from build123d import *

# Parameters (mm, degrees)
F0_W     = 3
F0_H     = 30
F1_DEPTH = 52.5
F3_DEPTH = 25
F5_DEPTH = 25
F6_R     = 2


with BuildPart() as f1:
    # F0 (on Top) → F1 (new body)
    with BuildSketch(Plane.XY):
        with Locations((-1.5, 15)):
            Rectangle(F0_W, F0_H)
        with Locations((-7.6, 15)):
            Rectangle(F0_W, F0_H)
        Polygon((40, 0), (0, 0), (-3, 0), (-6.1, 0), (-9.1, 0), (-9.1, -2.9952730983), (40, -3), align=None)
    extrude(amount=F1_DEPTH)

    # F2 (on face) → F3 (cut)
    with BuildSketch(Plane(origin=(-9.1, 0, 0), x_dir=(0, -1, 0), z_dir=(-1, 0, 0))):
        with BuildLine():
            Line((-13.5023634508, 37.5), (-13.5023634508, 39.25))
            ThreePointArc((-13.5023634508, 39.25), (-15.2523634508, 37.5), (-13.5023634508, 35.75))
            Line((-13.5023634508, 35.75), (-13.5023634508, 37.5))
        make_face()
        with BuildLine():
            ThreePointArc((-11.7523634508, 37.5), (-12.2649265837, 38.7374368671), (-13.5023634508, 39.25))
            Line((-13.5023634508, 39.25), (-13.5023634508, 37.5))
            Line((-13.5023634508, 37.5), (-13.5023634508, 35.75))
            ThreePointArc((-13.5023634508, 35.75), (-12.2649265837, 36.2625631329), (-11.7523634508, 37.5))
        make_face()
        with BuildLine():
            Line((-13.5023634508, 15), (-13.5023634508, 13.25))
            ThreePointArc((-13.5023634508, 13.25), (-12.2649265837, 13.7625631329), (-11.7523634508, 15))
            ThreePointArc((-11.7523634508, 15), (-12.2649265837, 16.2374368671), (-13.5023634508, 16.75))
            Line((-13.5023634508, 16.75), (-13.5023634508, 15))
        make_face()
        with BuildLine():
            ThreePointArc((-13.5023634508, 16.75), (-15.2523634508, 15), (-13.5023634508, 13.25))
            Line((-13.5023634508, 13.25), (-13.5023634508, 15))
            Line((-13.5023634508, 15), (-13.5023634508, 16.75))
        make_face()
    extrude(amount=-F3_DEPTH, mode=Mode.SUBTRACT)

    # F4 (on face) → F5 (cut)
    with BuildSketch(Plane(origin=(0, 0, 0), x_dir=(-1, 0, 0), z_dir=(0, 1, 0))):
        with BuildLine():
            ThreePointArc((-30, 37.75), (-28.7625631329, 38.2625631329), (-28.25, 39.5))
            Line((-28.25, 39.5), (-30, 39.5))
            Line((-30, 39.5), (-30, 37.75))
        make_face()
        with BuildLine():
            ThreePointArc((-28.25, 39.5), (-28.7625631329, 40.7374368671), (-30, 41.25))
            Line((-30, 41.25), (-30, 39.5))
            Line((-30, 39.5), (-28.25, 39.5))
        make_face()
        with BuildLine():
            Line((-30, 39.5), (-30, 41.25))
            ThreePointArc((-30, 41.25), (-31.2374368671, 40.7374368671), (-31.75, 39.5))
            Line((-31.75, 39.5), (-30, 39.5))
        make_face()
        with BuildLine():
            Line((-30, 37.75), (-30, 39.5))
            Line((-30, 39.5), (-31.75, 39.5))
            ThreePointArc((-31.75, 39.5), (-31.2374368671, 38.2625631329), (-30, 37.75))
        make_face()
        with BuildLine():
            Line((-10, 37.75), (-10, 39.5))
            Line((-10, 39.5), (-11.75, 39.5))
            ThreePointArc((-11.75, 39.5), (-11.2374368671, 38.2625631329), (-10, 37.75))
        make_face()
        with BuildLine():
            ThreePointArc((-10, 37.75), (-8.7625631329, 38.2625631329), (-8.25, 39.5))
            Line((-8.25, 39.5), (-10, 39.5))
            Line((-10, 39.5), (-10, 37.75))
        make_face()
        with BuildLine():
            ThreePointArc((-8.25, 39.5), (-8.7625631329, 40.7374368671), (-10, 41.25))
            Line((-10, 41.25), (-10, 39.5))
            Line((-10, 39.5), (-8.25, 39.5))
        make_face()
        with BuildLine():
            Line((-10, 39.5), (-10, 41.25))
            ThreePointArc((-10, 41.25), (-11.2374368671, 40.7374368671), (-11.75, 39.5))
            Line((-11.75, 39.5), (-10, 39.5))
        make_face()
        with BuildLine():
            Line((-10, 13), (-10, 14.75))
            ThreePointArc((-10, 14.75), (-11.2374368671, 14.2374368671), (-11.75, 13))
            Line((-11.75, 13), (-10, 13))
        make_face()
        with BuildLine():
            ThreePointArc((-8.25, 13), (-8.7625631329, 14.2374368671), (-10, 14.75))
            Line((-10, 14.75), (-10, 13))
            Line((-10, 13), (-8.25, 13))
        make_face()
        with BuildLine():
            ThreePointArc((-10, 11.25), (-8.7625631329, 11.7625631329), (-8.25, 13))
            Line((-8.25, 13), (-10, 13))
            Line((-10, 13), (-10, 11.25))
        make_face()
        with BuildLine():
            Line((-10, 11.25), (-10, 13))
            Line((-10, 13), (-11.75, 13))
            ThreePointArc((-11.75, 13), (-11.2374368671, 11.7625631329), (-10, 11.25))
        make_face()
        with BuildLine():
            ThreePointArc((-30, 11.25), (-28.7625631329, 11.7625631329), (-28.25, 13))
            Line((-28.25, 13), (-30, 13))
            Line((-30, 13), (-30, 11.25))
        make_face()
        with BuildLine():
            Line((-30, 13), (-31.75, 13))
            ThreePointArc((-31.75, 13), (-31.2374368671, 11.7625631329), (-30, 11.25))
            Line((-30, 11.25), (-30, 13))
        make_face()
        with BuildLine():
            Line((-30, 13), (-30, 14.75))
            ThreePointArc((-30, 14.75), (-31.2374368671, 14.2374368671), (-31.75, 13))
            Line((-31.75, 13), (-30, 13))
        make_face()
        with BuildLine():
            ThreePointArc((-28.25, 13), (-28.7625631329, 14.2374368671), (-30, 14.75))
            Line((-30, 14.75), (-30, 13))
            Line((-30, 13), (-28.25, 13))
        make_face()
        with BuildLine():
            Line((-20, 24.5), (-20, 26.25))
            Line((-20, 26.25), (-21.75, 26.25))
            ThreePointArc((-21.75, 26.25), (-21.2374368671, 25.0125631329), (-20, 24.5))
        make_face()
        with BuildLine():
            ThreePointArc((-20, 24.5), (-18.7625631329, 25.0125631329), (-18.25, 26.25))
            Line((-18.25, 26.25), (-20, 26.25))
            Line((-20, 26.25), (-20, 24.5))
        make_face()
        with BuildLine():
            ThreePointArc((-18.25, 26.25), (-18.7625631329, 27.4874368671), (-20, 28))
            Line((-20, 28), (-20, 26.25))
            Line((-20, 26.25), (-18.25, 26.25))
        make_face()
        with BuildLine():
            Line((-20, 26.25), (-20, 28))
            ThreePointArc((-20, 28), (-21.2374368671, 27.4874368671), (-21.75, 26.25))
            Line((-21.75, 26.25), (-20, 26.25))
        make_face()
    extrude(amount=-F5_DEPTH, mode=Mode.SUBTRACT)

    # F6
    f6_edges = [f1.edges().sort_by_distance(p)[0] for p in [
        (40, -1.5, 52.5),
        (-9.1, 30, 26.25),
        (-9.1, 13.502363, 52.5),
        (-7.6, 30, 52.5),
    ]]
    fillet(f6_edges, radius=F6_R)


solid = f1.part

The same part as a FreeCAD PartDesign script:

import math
import FreeCAD as App
import Part
import Sketcher
from FreeCAD import Vector


def edges_at(feature, points):
    """Names of the edges that pass closest to the given points."""
    edges = feature.Shape.Edges
    near = lambda p: min(range(len(edges)), key=lambda i: edges[i].distToShape(Part.Vertex(*p))[0])
    return sorted({f"Edge{near(p) + 1}" for p in points})

doc = App.newDocument("Part")
params = doc.addObject("Spreadsheet::Sheet", "Params")
for row, (alias, value) in enumerate([
    ("sketch1_width", "3 mm"),
    ("sketch1_width2", "40 mm"),
    ("sketch1_height", "30 mm"),
    ("sketch1_width3", "3.1 mm"),
    ("pad1_length", "52.5 mm"),
    ("sketch2_radius", "1.75 mm"),
    ("pocket1_length", "25 mm"),
    ("sketch3_radius", "1.75 mm"),
    ("pocket2_length", "25 mm"),
    ("fillet_radius", "2 mm"),
], start=1):
    params.set(f"A{row}", alias)
    params.set(f"B{row}", "=" + value)
    params.setAlias(f"B{row}", alias)

body = doc.addObject("PartDesign::Body", "Body")

sketch1 = body.newObject("Sketcher::SketchObject", "Sketch")
sketch1.AttachmentSupport = (doc.getObject("XY_Plane"), [""])
sketch1.MapMode = "FlatFace"
sketch1.addGeometry(Part.LineSegment(Vector(-3, 30, 0), Vector(-3, 0, 0)), False)
sketch1.addGeometry(Part.LineSegment(Vector(-3, 0, 0), Vector(-6.1, 0, 0)), False)
sketch1.addGeometry(Part.LineSegment(Vector(-6.1, 0, 0), Vector(-6.1, 30, 0)), False)
sketch1.addGeometry(Part.LineSegment(Vector(-6.1, 30, 0), Vector(-9.1, 30, 0)), False)
sketch1.addGeometry(Part.LineSegment(Vector(-9.1, 30, 0), Vector(-9.1, -2.995273, 0)), False)
sketch1.addGeometry(Part.LineSegment(Vector(-9.1, -2.995273, 0), Vector(40, -3, 0)), False)
sketch1.addGeometry(Part.LineSegment(Vector(40, -3, 0), Vector(40, 0, 0)), False)
sketch1.addGeometry(Part.LineSegment(Vector(40, 0, 0), Vector(0, 0, 0)), False)
sketch1.addGeometry(Part.LineSegment(Vector(0, 0, 0), Vector(0, 30, 0)), False)
sketch1.addGeometry(Part.LineSegment(Vector(0, 30, 0), Vector(-3, 30, 0)), False)
sketch1.addConstraint(Sketcher.Constraint("Coincident", 0, 2, 1, 1))
sketch1.addConstraint(Sketcher.Constraint("Coincident", 1, 2, 2, 1))
sketch1.addConstraint(Sketcher.Constraint("Coincident", 2, 2, 3, 1))
sketch1.addConstraint(Sketcher.Constraint("Coincident", 3, 2, 4, 1))
sketch1.addConstraint(Sketcher.Constraint("Coincident", 4, 2, 5, 1))
sketch1.addConstraint(Sketcher.Constraint("Coincident", 5, 2, 6, 1))
sketch1.addConstraint(Sketcher.Constraint("Coincident", 6, 2, 7, 1))
sketch1.addConstraint(Sketcher.Constraint("Coincident", 7, 2, 8, 1))
sketch1.addConstraint(Sketcher.Constraint("Coincident", 8, 2, 9, 1))
sketch1.addConstraint(Sketcher.Constraint("Coincident", 9, 2, 0, 1))
sketch1.addConstraint(Sketcher.Constraint("Vertical", 0))
sketch1.addConstraint(Sketcher.Constraint("Horizontal", 1))
sketch1.addConstraint(Sketcher.Constraint("Vertical", 2))
sketch1.addConstraint(Sketcher.Constraint("Horizontal", 3))
sketch1.addConstraint(Sketcher.Constraint("Vertical", 4))
sketch1.addConstraint(Sketcher.Constraint("Vertical", 6))
sketch1.addConstraint(Sketcher.Constraint("Horizontal", 7))
sketch1.addConstraint(Sketcher.Constraint("Vertical", 8))
sketch1.addConstraint(Sketcher.Constraint("Horizontal", 9))
sketch1.addConstraint(Sketcher.Constraint("Coincident", 7, 2, -1, 1))
sketch1.addConstraint(Sketcher.Constraint("PointOnObject", 0, 2, -1))
sketch1.addConstraint(Sketcher.Constraint("Horizontal", 3, 2, 8, 2))
sketch1.addConstraint(Sketcher.Constraint("Equal", 3, 9))
sketch1.addConstraint(Sketcher.Constraint("Equal", 9, 6))
sketch1.addConstraint(Sketcher.Constraint("DistanceX", 3, 2, 3, 1, 3.0))
sketch1.addConstraint(Sketcher.Constraint("DistanceX", 7, 2, 7, 1, 40.0))
sketch1.addConstraint(Sketcher.Constraint("DistanceY", 0, 2, 0, 1, 30.0))
sketch1.addConstraint(Sketcher.Constraint("DistanceX", 1, 2, 1, 1, 3.1))
sketch1.addConstraint(Sketcher.Constraint("DistanceY", 4, 2, 4, 1, 32.995273))
sketch1.setExpression("Constraints[24]", "Params.sketch1_width")
sketch1.setExpression("Constraints[25]", "Params.sketch1_width2")
sketch1.setExpression("Constraints[26]", "Params.sketch1_height")
sketch1.setExpression("Constraints[27]", "Params.sketch1_width3")
pad1 = body.newObject("PartDesign::Pad", "Pad")
pad1.Profile = sketch1
pad1.setExpression("Length", "Params.pad1_length")

sketch2 = body.newObject("Sketcher::SketchObject", "Sketch001")
sketch2.AttachmentSupport = (doc.getObject("YZ_Plane"), [""])
sketch2.MapMode = "FlatFace"
sketch2.AttachmentOffset = App.Placement(Vector(0, 0, -9.1), App.Rotation())
sketch2.addGeometry(Part.ArcOfCircle(Part.Circle(Vector(13.502363, 37.5, 0), Vector(0, 0, 1), 1.75), math.radians(-90), math.radians(90)), False)
sketch2.addGeometry(Part.ArcOfCircle(Part.Circle(Vector(13.502363, 37.5, 0), Vector(0, 0, 1), 1.75), math.radians(180), math.radians(270)), False)
sketch2.addGeometry(Part.ArcOfCircle(Part.Circle(Vector(13.502363, 37.5, 0), Vector(0, 0, 1), 1.75), math.radians(90), math.radians(180)), False)
sketch2.addGeometry(Part.ArcOfCircle(Part.Circle(Vector(13.502363, 15, 0), Vector(0, 0, 1), 1.75), math.radians(180), math.radians(270)), False)
sketch2.addGeometry(Part.ArcOfCircle(Part.Circle(Vector(13.502363, 15, 0), Vector(0, 0, 1), 1.75), math.radians(90), math.radians(180)), False)
sketch2.addGeometry(Part.ArcOfCircle(Part.Circle(Vector(13.502363, 15, 0), Vector(0, 0, 1), 1.75), math.radians(-90), math.radians(90)), False)
sketch2.addConstraint(Sketcher.Constraint("Tangent", 0, 1, 1, 2))
sketch2.addConstraint(Sketcher.Constraint("Tangent", 1, 1, 2, 2))
sketch2.addConstraint(Sketcher.Constraint("Tangent", 2, 1, 0, 2))
sketch2.addConstraint(Sketcher.Constraint("Tangent", 3, 1, 4, 2))
sketch2.addConstraint(Sketcher.Constraint("Tangent", 4, 1, 5, 2))
sketch2.addConstraint(Sketcher.Constraint("Tangent", 5, 1, 3, 2))
sketch2.addConstraint(Sketcher.Constraint("Equal", 2, 3))
sketch2.addConstraint(Sketcher.Constraint("Horizontal", 2, 3, 1, 1))
sketch2.addConstraint(Sketcher.Constraint("Horizontal", 5, 3, 3, 1))
sketch2.addConstraint(Sketcher.Constraint("Vertical", 2, 3, 3, 3))
sketch2.addConstraint(Sketcher.Constraint("Vertical", 5, 3, 0, 1))
sketch2.addConstraint(Sketcher.Constraint("Vertical", 0, 1, 2, 1))
sketch2.addConstraint(Sketcher.Constraint("Vertical", 2, 1, 4, 1))
sketch2.addConstraint(Sketcher.Constraint("Vertical", 4, 1, 5, 1))
sketch2.addConstraint(Sketcher.Constraint("Radius", 0, 1.75))
sketch2.addConstraint(Sketcher.Constraint("DistanceY", -1, 1, 3, 3, 15.0))
sketch2.addConstraint(Sketcher.Constraint("DistanceY", 4, 1, 0, 1, 19.0))
sketch2.addConstraint(Sketcher.Constraint("DistanceX", -1, 1, 0, 3, 13.502363))
sketch2.setExpression("Constraints[14]", "Params.sketch2_radius")
pocket1 = body.newObject("PartDesign::Pocket", "Pocket")
pocket1.Profile = sketch2
pocket1.setExpression("Length", "Params.pocket1_length")
pocket1.Reversed = True

sketch3 = body.newObject("Sketcher::SketchObject", "Sketch002")
sketch3.AttachmentSupport = (doc.getObject("XZ_Plane"), [""])
sketch3.MapMode = "FlatFace"
sketch3.addGeometry(Part.ArcOfCircle(Part.Circle(Vector(30, 39.5, 0), Vector(0, 0, 1), 1.75), math.radians(180), math.radians(270)), False)
sketch3.addGeometry(Part.ArcOfCircle(Part.Circle(Vector(30, 39.5, 0), Vector(0, 0, 1), 1.75), math.radians(90), math.radians(180)), False)
sketch3.addGeometry(Part.ArcOfCircle(Part.Circle(Vector(30, 39.5, 0), Vector(0, 0, 1), 1.75), math.radians(0), math.radians(90)), False)
sketch3.addGeometry(Part.ArcOfCircle(Part.Circle(Vector(30, 39.5, 0), Vector(0, 0, 1), 1.75), math.radians(-90), math.radians(0)), False)
sketch3.addGeometry(Part.ArcOfCircle(Part.Circle(Vector(10, 39.5, 0), Vector(0, 0, 1), 1.75), math.radians(-90), math.radians(0)), False)
sketch3.addGeometry(Part.ArcOfCircle(Part.Circle(Vector(10, 39.5, 0), Vector(0, 0, 1), 1.75), math.radians(180), math.radians(270)), False)
sketch3.addGeometry(Part.ArcOfCircle(Part.Circle(Vector(10, 39.5, 0), Vector(0, 0, 1), 1.75), math.radians(90), math.radians(180)), False)
sketch3.addGeometry(Part.ArcOfCircle(Part.Circle(Vector(10, 39.5, 0), Vector(0, 0, 1), 1.75), math.radians(0), math.radians(90)), False)
sketch3.addGeometry(Part.ArcOfCircle(Part.Circle(Vector(10, 13, 0), Vector(0, 0, 1), 1.75), math.radians(0), math.radians(90)), False)
sketch3.addGeometry(Part.ArcOfCircle(Part.Circle(Vector(10, 13, 0), Vector(0, 0, 1), 1.75), math.radians(-90), math.radians(0)), False)
sketch3.addGeometry(Part.ArcOfCircle(Part.Circle(Vector(10, 13, 0), Vector(0, 0, 1), 1.75), math.radians(180), math.radians(270)), False)
sketch3.addGeometry(Part.ArcOfCircle(Part.Circle(Vector(10, 13, 0), Vector(0, 0, 1), 1.75), math.radians(90), math.radians(180)), False)
sketch3.addGeometry(Part.ArcOfCircle(Part.Circle(Vector(30, 13, 0), Vector(0, 0, 1), 1.75), math.radians(180), math.radians(270)), False)
sketch3.addGeometry(Part.ArcOfCircle(Part.Circle(Vector(30, 13, 0), Vector(0, 0, 1), 1.75), math.radians(90), math.radians(180)), False)
sketch3.addGeometry(Part.ArcOfCircle(Part.Circle(Vector(30, 13, 0), Vector(0, 0, 1), 1.75), math.radians(0), math.radians(90)), False)
sketch3.addGeometry(Part.ArcOfCircle(Part.Circle(Vector(30, 13, 0), Vector(0, 0, 1), 1.75), math.radians(-90), math.radians(0)), False)
sketch3.addGeometry(Part.ArcOfCircle(Part.Circle(Vector(20, 26.25, 0), Vector(0, 0, 1), 1.75), math.radians(-90), math.radians(0)), False)
sketch3.addGeometry(Part.ArcOfCircle(Part.Circle(Vector(20, 26.25, 0), Vector(0, 0, 1), 1.75), math.radians(180), math.radians(270)), False)
sketch3.addGeometry(Part.ArcOfCircle(Part.Circle(Vector(20, 26.25, 0), Vector(0, 0, 1), 1.75), math.radians(90), math.radians(180)), False)
sketch3.addGeometry(Part.ArcOfCircle(Part.Circle(Vector(20, 26.25, 0), Vector(0, 0, 1), 1.75), math.radians(0), math.radians(90)), False)
sketch3.addConstraint(Sketcher.Constraint("Tangent", 0, 1, 1, 2))
sketch3.addConstraint(Sketcher.Constraint("Tangent", 1, 1, 2, 2))
sketch3.addConstraint(Sketcher.Constraint("Tangent", 2, 1, 3, 2))
sketch3.addConstraint(Sketcher.Constraint("Tangent", 3, 1, 0, 2))
sketch3.addConstraint(Sketcher.Constraint("Tangent", 4, 1, 5, 2))
sketch3.addConstraint(Sketcher.Constraint("Tangent", 5, 1, 6, 2))
sketch3.addConstraint(Sketcher.Constraint("Tangent", 6, 1, 7, 2))
sketch3.addConstraint(Sketcher.Constraint("Tangent", 7, 1, 4, 2))
sketch3.addConstraint(Sketcher.Constraint("Tangent", 8, 1, 9, 2))
sketch3.addConstraint(Sketcher.Constraint("Tangent", 9, 1, 10, 2))
sketch3.addConstraint(Sketcher.Constraint("Tangent", 10, 1, 11, 2))
sketch3.addConstraint(Sketcher.Constraint("Tangent", 11, 1, 8, 2))
sketch3.addConstraint(Sketcher.Constraint("Tangent", 12, 1, 13, 2))
sketch3.addConstraint(Sketcher.Constraint("Tangent", 13, 1, 14, 2))
sketch3.addConstraint(Sketcher.Constraint("Tangent", 14, 1, 15, 2))
sketch3.addConstraint(Sketcher.Constraint("Tangent", 15, 1, 12, 2))
sketch3.addConstraint(Sketcher.Constraint("Tangent", 16, 1, 17, 2))
sketch3.addConstraint(Sketcher.Constraint("Tangent", 17, 1, 18, 2))
sketch3.addConstraint(Sketcher.Constraint("Tangent", 18, 1, 19, 2))
sketch3.addConstraint(Sketcher.Constraint("Tangent", 19, 1, 16, 2))
sketch3.addConstraint(Sketcher.Constraint("Equal", 0, 1))
sketch3.addConstraint(Sketcher.Constraint("Equal", 3, 4))
sketch3.addConstraint(Sketcher.Constraint("Equal", 4, 5))
sketch3.addConstraint(Sketcher.Constraint("Equal", 7, 8))
sketch3.addConstraint(Sketcher.Constraint("Equal", 8, 9))
sketch3.addConstraint(Sketcher.Constraint("Equal", 11, 12))
sketch3.addConstraint(Sketcher.Constraint("Equal", 12, 13))
sketch3.addConstraint(Sketcher.Constraint("Equal", 15, 16))
sketch3.addConstraint(Sketcher.Constraint("Equal", 16, 17))
sketch3.addConstraint(Sketcher.Constraint("Horizontal", 3, 3, 4, 3))
sketch3.addConstraint(Sketcher.Constraint("Horizontal", 11, 3, 12, 3))
sketch3.addConstraint(Sketcher.Constraint("Horizontal", 7, 3, 0, 1))
sketch3.addConstraint(Sketcher.Constraint("Horizontal", 0, 1, 2, 1))
sketch3.addConstraint(Sketcher.Constraint("Horizontal", 2, 1, 5, 1))
sketch3.addConstraint(Sketcher.Constraint("Horizontal", 5, 1, 7, 1))
sketch3.addConstraint(Sketcher.Constraint("Horizontal", 15, 3, 8, 1))
sketch3.addConstraint(Sketcher.Constraint("Horizontal", 8, 1, 10, 1))
sketch3.addConstraint(Sketcher.Constraint("Horizontal", 10, 1, 12, 1))
sketch3.addConstraint(Sketcher.Constraint("Horizontal", 12, 1, 14, 1))
sketch3.addConstraint(Sketcher.Constraint("Horizontal", 19, 3, 17, 1))
sketch3.addConstraint(Sketcher.Constraint("Horizontal", 17, 1, 19, 1))
sketch3.addConstraint(Sketcher.Constraint("Vertical", 7, 3, 8, 3))
sketch3.addConstraint(Sketcher.Constraint("Vertical", 3, 3, 12, 3))
sketch3.addConstraint(Sketcher.Constraint("Vertical", 15, 3, 1, 1))
sketch3.addConstraint(Sketcher.Constraint("Vertical", 1, 1, 3, 1))
sketch3.addConstraint(Sketcher.Constraint("Vertical", 11, 3, 4, 1))
sketch3.addConstraint(Sketcher.Constraint("Vertical", 4, 1, 6, 1))
sketch3.addConstraint(Sketcher.Constraint("Vertical", 6, 1, 9, 1))
sketch3.addConstraint(Sketcher.Constraint("Vertical", 9, 1, 11, 1))
sketch3.addConstraint(Sketcher.Constraint("Vertical", 3, 1, 13, 1))
sketch3.addConstraint(Sketcher.Constraint("Vertical", 13, 1, 15, 1))
sketch3.addConstraint(Sketcher.Constraint("Vertical", 19, 3, 16, 1))
sketch3.addConstraint(Sketcher.Constraint("Vertical", 16, 1, 18, 1))
sketch3.addConstraint(Sketcher.Constraint("Radius", 0, 1.75))
sketch3.addConstraint(Sketcher.Constraint("DistanceX", -1, 1, 0, 3, 30.0))
sketch3.addConstraint(Sketcher.Constraint("DistanceX", -1, 1, 4, 3, 10.0))
sketch3.addConstraint(Sketcher.Constraint("DistanceY", -1, 1, 8, 3, 13.0))
sketch3.addConstraint(Sketcher.Constraint("DistanceX", -1, 1, 16, 3, 20.0))
sketch3.addConstraint(Sketcher.Constraint("DistanceY", -1, 1, 18, 1, 28.0))
sketch3.addConstraint(Sketcher.Constraint("DistanceY", -1, 1, 0, 3, 39.5))
sketch3.setExpression("Constraints[53]", "Params.sketch3_radius")
pocket2 = body.newObject("PartDesign::Pocket", "Pocket001")
pocket2.Profile = sketch3
pocket2.setExpression("Length", "Params.pocket2_length")
pocket2.Reversed = True
doc.recompute()

fillet = body.newObject("PartDesign::Fillet", "Fillet")
fillet.Base = (pocket2, edges_at(pocket2, [
    (40, -1.5, 52.5),
    (-9.1, 30, 26.25),
    (-9.1, 13.502, 52.5),
    (-7.6, 30, 52.5),
]))
fillet.setExpression("Radius", "Params.fillet_radius")

doc.recompute()
